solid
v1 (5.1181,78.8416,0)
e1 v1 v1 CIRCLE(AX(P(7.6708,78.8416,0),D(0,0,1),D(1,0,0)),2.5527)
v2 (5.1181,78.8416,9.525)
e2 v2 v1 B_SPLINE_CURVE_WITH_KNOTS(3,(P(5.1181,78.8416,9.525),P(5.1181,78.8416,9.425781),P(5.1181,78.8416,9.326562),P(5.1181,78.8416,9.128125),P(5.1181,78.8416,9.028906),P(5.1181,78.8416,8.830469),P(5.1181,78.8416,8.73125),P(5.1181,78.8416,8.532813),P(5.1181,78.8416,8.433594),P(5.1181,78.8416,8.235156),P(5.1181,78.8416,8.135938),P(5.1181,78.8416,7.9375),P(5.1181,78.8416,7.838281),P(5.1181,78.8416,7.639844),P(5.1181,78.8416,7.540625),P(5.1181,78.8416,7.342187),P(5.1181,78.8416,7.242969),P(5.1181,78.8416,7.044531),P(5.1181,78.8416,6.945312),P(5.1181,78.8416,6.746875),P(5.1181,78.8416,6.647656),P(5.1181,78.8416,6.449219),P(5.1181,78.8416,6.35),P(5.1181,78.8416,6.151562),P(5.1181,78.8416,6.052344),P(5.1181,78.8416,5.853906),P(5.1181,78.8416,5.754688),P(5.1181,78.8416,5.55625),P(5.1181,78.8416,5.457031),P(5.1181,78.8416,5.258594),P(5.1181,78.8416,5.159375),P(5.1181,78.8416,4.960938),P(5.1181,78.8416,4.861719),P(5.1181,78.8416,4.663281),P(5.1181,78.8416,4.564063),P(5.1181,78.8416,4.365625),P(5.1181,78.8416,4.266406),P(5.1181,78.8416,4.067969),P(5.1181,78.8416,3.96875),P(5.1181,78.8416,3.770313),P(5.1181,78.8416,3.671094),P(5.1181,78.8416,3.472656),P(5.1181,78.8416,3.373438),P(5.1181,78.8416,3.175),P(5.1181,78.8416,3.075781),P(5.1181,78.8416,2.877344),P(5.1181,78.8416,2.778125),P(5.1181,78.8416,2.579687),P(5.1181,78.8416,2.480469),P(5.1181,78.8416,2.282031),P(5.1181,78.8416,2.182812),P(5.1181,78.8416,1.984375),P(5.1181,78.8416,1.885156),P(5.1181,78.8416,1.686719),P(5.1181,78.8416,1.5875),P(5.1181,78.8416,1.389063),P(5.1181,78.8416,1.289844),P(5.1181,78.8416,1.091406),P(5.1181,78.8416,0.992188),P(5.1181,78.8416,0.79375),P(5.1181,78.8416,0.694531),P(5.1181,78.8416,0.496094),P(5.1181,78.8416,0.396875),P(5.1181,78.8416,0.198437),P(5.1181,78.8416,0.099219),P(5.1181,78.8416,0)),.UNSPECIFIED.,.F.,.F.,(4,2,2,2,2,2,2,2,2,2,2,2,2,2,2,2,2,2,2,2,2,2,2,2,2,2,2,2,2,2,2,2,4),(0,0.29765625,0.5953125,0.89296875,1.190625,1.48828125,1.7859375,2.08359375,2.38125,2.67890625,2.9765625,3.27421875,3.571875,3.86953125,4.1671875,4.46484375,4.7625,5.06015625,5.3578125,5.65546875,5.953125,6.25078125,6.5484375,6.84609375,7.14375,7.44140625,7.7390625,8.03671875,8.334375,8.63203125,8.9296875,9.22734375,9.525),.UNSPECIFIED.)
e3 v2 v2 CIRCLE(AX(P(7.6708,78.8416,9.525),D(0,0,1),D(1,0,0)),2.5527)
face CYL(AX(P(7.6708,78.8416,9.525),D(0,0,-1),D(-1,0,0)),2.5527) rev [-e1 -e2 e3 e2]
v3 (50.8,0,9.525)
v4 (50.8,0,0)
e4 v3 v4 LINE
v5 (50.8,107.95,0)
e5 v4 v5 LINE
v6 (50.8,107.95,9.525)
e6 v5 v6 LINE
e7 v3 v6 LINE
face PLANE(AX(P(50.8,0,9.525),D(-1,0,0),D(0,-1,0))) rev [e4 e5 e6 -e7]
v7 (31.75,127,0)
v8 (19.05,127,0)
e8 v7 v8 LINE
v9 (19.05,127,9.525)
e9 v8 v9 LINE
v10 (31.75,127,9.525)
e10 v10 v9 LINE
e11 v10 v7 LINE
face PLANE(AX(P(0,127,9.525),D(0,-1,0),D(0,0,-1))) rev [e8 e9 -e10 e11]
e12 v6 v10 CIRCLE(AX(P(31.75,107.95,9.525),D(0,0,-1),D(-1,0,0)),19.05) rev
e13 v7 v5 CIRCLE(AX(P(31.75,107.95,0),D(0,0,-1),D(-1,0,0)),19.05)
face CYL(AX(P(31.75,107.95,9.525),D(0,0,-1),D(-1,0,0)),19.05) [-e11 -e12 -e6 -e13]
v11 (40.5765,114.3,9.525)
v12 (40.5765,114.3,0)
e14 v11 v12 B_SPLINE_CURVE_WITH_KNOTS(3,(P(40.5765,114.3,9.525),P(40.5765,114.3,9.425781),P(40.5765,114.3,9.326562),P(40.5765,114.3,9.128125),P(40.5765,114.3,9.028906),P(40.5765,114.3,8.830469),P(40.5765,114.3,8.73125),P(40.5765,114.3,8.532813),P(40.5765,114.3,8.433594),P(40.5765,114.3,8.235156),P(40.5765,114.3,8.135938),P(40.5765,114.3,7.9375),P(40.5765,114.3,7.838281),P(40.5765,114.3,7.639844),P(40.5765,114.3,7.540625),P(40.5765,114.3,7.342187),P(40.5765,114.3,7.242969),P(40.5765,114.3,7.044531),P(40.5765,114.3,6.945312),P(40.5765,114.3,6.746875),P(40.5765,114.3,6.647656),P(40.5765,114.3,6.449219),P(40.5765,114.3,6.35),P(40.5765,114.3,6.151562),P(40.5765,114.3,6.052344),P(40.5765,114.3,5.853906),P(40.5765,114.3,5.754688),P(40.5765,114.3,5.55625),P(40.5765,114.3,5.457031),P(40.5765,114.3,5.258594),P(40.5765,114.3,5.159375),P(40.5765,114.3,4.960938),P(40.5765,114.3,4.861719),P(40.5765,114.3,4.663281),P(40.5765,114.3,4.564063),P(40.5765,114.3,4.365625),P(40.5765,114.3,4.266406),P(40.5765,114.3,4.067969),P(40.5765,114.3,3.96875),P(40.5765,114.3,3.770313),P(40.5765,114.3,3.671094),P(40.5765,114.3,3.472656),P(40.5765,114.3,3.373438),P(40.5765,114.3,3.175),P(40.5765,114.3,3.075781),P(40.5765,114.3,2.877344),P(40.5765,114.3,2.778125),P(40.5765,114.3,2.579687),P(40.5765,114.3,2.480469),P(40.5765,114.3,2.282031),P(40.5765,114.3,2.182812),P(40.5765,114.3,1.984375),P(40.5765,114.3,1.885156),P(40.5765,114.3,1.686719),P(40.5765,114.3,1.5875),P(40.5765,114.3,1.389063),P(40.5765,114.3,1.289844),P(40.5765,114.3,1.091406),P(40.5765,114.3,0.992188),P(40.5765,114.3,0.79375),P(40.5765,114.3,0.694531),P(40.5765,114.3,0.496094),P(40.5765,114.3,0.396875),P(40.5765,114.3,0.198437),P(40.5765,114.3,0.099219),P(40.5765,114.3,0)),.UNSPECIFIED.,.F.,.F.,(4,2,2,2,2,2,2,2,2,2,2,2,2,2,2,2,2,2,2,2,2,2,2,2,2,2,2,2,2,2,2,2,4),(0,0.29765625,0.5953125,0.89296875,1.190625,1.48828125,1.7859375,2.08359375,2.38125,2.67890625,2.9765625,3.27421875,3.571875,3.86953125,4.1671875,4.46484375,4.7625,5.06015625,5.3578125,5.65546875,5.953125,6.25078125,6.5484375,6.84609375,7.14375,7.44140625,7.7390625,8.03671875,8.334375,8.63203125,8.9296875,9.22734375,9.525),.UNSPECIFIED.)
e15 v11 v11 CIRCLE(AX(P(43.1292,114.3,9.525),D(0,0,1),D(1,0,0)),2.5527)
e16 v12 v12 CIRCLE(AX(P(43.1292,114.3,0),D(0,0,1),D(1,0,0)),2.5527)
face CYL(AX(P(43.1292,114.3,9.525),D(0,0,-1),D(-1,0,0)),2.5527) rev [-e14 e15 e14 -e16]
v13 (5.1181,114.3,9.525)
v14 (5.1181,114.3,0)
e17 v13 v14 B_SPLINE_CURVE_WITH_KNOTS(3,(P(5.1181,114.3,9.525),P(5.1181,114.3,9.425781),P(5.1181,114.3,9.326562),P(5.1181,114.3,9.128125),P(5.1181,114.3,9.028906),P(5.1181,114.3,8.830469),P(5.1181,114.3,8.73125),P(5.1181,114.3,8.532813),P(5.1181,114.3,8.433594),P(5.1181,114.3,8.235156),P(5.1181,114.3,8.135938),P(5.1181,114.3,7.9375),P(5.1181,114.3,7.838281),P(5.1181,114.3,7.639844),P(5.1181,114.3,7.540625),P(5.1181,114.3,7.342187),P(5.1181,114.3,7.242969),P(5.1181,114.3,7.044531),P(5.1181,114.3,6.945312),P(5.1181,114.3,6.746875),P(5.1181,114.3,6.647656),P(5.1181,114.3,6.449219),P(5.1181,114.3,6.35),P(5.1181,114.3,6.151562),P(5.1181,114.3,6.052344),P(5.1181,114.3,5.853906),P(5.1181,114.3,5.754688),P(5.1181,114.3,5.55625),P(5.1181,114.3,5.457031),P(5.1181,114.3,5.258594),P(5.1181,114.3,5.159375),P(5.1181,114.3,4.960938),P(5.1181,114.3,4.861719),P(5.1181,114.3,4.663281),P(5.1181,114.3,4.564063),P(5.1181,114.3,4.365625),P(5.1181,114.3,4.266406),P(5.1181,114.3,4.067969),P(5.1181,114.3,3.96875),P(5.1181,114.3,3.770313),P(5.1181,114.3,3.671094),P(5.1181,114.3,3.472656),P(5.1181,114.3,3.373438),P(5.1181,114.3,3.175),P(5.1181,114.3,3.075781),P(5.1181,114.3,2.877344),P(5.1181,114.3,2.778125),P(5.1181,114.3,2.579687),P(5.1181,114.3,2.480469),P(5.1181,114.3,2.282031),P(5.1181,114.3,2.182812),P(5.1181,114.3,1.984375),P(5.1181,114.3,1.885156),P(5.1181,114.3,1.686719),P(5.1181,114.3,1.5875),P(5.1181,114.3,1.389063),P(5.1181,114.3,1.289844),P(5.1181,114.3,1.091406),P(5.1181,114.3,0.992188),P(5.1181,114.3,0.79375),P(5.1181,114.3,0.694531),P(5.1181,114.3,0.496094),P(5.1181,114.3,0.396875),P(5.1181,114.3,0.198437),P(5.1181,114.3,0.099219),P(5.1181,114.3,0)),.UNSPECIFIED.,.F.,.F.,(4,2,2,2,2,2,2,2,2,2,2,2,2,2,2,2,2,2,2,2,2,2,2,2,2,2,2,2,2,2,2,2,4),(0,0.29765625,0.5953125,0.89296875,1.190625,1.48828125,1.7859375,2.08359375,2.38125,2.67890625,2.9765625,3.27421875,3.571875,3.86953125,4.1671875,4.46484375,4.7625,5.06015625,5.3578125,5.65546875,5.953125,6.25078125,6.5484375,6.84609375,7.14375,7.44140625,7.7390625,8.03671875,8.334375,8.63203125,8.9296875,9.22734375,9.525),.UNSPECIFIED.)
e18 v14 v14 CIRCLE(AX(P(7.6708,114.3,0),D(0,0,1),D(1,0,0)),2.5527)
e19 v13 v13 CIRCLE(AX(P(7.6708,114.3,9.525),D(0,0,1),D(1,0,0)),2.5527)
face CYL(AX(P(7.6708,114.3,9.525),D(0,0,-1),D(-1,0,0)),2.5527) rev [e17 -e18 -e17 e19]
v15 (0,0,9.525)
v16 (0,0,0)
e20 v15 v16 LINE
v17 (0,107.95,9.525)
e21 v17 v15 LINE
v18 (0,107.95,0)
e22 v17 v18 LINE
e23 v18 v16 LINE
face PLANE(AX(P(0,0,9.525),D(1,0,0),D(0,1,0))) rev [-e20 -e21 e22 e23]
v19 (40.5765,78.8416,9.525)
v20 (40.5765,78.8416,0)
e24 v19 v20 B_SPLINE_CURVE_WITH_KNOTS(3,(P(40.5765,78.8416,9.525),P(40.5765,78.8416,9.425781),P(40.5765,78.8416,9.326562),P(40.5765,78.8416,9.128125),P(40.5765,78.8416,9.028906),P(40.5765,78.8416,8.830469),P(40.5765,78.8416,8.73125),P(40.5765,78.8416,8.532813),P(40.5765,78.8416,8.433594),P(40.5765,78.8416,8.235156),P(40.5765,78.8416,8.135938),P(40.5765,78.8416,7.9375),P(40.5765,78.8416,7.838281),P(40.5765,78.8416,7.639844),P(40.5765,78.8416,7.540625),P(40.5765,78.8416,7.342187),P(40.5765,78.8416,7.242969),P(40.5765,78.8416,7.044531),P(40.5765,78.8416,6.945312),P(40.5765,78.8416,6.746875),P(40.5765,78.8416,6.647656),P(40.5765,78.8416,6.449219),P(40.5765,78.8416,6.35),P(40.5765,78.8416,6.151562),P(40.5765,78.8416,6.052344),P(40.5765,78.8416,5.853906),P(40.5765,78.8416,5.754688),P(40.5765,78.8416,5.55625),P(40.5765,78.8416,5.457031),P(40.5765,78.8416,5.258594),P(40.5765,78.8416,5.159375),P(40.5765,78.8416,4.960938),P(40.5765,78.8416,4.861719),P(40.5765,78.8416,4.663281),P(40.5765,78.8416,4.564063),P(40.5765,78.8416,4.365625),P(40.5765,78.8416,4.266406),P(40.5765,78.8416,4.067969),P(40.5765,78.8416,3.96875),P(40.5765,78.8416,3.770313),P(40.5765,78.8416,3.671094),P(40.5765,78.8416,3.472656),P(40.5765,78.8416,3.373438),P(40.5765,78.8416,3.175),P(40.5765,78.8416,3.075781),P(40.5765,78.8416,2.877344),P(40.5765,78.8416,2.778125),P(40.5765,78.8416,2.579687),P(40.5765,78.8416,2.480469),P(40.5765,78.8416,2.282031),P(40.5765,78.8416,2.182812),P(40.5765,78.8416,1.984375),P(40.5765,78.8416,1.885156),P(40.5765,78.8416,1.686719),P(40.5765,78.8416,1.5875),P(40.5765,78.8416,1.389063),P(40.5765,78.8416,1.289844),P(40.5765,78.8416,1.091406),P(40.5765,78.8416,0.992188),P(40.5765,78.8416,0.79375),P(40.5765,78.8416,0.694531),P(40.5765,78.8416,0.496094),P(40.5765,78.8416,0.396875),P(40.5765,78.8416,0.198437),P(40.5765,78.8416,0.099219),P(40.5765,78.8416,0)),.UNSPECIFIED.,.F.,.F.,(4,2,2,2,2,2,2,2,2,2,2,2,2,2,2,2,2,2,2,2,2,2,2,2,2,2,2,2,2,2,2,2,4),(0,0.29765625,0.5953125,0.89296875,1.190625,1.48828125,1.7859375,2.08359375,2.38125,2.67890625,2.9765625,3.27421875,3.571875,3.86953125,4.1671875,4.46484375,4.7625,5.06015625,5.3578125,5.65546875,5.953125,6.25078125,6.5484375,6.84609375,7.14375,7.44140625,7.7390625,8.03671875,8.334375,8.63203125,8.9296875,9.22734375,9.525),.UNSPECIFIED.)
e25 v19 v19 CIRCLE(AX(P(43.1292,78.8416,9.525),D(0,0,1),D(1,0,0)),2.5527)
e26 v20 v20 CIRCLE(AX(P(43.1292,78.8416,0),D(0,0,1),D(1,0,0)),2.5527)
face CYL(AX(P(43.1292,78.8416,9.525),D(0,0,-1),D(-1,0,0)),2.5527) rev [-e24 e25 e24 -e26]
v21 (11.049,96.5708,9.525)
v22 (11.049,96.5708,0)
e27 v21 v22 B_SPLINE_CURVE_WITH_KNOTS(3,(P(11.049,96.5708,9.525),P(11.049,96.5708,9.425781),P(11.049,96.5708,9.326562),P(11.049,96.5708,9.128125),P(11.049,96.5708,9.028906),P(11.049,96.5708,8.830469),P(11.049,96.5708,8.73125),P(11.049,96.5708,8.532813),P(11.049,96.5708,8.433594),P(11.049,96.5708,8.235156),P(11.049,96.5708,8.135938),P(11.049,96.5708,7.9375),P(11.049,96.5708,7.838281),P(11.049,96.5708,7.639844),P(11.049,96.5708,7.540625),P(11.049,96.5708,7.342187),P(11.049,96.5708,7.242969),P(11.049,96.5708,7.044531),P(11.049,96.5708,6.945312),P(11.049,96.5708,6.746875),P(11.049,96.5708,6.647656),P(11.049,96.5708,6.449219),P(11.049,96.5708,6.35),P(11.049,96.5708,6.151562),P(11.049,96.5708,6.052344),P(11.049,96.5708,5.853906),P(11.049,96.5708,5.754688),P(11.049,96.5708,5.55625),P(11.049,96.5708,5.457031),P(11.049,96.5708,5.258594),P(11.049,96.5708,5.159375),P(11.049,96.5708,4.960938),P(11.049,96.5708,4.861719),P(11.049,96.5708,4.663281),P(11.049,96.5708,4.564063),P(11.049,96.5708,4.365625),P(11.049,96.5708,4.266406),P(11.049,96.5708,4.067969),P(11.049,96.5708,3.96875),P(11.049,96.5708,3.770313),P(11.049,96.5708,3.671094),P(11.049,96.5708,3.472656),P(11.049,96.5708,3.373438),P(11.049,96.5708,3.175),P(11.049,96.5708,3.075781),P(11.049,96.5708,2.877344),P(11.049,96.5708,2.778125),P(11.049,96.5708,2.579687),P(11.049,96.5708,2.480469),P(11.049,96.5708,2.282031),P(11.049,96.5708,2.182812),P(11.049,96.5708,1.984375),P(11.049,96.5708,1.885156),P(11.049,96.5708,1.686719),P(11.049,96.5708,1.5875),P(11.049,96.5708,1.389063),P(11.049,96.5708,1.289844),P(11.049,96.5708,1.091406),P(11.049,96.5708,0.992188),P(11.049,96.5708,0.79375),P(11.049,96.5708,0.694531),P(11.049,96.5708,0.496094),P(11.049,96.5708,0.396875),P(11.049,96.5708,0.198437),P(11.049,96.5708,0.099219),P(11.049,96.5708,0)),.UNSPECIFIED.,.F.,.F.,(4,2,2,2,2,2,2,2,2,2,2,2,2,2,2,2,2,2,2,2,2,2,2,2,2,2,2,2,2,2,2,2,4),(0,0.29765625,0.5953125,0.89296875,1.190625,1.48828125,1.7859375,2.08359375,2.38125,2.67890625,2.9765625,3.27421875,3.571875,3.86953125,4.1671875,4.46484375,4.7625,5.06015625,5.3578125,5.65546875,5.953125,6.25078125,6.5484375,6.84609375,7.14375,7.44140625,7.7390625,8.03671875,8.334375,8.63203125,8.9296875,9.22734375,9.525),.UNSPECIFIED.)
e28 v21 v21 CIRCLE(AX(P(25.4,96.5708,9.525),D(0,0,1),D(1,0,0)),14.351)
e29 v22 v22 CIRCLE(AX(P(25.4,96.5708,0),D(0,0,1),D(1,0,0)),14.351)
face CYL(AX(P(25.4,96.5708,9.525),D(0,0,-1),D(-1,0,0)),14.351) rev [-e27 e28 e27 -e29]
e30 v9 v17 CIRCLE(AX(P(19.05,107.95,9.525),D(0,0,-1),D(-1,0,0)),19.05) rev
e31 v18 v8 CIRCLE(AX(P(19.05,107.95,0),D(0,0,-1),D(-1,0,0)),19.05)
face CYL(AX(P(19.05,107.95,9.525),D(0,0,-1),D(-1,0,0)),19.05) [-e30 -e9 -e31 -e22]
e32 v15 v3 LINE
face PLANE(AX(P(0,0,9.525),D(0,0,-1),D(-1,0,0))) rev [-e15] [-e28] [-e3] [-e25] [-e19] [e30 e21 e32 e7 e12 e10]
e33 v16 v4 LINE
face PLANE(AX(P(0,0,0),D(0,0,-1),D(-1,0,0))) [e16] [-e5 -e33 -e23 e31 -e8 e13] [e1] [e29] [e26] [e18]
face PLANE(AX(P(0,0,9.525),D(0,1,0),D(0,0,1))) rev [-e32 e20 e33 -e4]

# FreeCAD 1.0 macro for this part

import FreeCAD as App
import Part
import Sketcher
from FreeCAD import Vector
Q = App.Units.Quantity


def edges_at(feature, points):
    """Names of the edges that pass closest to the given points."""
    edges = feature.Shape.Edges
    near = lambda p: min(range(len(edges)), key=lambda i: edges[i].distToShape(Part.Vertex(*p))[0])
    return sorted({f"Edge{near(p) + 1}" for p in points})

doc = App.newDocument("Part")
params = doc.addObject("Spreadsheet::Sheet", "Params")
for row, (alias, value) in enumerate([
    ("sketch1_diameter", "1.13 in"),
    ("sketch1_width", "2 in"),
    ("sketch1_height", "5 in"),
    ("sketch1_diameter2", "0.201 in"),
    ("pad1_length", "0.375 in"),
    ("fillet_radius", "0.75 in"),
    ("fillet2_radius", "0.75 in"),
], start=1):
    params.set(f"A{row}", alias)
    params.set(f"B{row}", "=" + value)
    params.setAlias(f"B{row}", alias)

body = doc.addObject("PartDesign::Body", "Body")

sketch1 = doc.addObject("Sketcher::SketchObject", "Sketch")
body.addObject(sketch1)
sketch1.AttachmentSupport = (doc.XY_Plane, [""])
sketch1.MapMode = "FlatFace"
sketch1.addGeometry(Part.LineSegment(Vector(0, 127, 0), Vector(0, 0, 0)), False)
sketch1.addGeometry(Part.LineSegment(Vector(0, 0, 0), Vector(50.8, 0, 0)), False)
sketch1.addGeometry(Part.LineSegment(Vector(50.8, 0, 0), Vector(50.8, 127, 0)), False)
sketch1.addGeometry(Part.LineSegment(Vector(50.8, 127, 0), Vector(0, 127, 0)), False)
sketch1.addGeometry(Part.Circle(Vector(7.7, 78.8, 0), Vector(0, 0, 1), 2.6), False)
sketch1.addGeometry(Part.Circle(Vector(43.1, 78.8, 0), Vector(0, 0, 1), 2.6), False)
sketch1.addGeometry(Part.Circle(Vector(7.7, 114.3, 0), Vector(0, 0, 1), 2.6), False)
sketch1.addGeometry(Part.Circle(Vector(25.4, 96.6, 0), Vector(0, 0, 1), 14.4), False)
sketch1.addGeometry(Part.Circle(Vector(43.1, 114.3, 0), Vector(0, 0, 1), 2.6), False)
sketch1.addConstraint(Sketcher.Constraint("Coincident", 0, 2, 1, 1))
sketch1.addConstraint(Sketcher.Constraint("Coincident", 1, 2, 2, 1))
sketch1.addConstraint(Sketcher.Constraint("Coincident", 2, 2, 3, 1))
sketch1.addConstraint(Sketcher.Constraint("Coincident", 3, 2, 0, 1))
sketch1.addConstraint(Sketcher.Constraint("Vertical", 0))
sketch1.addConstraint(Sketcher.Constraint("Horizontal", 1))
sketch1.addConstraint(Sketcher.Constraint("Vertical", 2))
sketch1.addConstraint(Sketcher.Constraint("Horizontal", 3))
sketch1.addConstraint(Sketcher.Constraint("Coincident", 0, 2, -1, 1))
sketch1.addConstraint(Sketcher.Constraint("Equal", 4, 5))
sketch1.addConstraint(Sketcher.Constraint("Equal", 5, 6))
sketch1.addConstraint(Sketcher.Constraint("Equal", 6, 8))
sketch1.addConstraint(Sketcher.Constraint("Horizontal", 4, 3, 5, 3))
sketch1.addConstraint(Sketcher.Constraint("Horizontal", 6, 3, 8, 3))
sketch1.addConstraint(Sketcher.Constraint("Vertical", 4, 3, 6, 3))
sketch1.addConstraint(Sketcher.Constraint("Vertical", 5, 3, 8, 3))
sketch1.addConstraint(Sketcher.Constraint("Diameter", 7, Q("1.13 in")))
sketch1.addConstraint(Sketcher.Constraint("DistanceX", 1, 1, 1, 2, Q("2 in")))
sketch1.addConstraint(Sketcher.Constraint("DistanceY", 0, 2, 0, 1, Q("5 in")))
sketch1.addConstraint(Sketcher.Constraint("Diameter", 4, Q("0.201 in")))
sketch1.addConstraint(Sketcher.Constraint("DistanceX", -1, 1, 7, 3, Q("1 in")))
sketch1.addConstraint(Sketcher.Constraint("DistanceY", -1, 1, 6, 3, Q("4.5 in")))
sketch1.addConstraint(Sketcher.Constraint("DistanceX", -1, 1, 4, 3, Q("0.302 in")))
sketch1.addConstraint(Sketcher.Constraint("DistanceY", -1, 1, 4, 3, Q("3.104 in")))
sketch1.addConstraint(Sketcher.Constraint("DistanceX", -1, 1, 5, 3, Q("1.698 in")))
sketch1.addConstraint(Sketcher.Constraint("DistanceY", -1, 1, 7, 3, Q("3.802 in")))
sketch1.setExpression("Constraints[16]", "Params.sketch1_diameter")
sketch1.setExpression("Constraints[17]", "Params.sketch1_width")
sketch1.setExpression("Constraints[18]", "Params.sketch1_height")
sketch1.setExpression("Constraints[19]", "Params.sketch1_diameter2")
pad1 = doc.addObject("PartDesign::Pad", "Pad")
body.addObject(pad1)
pad1.Profile = sketch1
pad1.setExpression("Length", "Params.pad1_length")
doc.recompute()

fillet = doc.addObject("PartDesign::Fillet", "Fillet")
body.addObject(fillet)
fillet.Base = (pad1, edges_at(pad1, [(50.8, 127, 4.763)]))
fillet.setExpression("Radius", "Params.fillet_radius")
doc.recompute()

fillet2 = doc.addObject("PartDesign::Fillet", "Fillet001")
body.addObject(fillet2)
fillet2.Base = (fillet, edges_at(fillet, [(0, 127, 4.763)]))
fillet2.setExpression("Radius", "Params.fillet2_radius")

doc.recompute()
